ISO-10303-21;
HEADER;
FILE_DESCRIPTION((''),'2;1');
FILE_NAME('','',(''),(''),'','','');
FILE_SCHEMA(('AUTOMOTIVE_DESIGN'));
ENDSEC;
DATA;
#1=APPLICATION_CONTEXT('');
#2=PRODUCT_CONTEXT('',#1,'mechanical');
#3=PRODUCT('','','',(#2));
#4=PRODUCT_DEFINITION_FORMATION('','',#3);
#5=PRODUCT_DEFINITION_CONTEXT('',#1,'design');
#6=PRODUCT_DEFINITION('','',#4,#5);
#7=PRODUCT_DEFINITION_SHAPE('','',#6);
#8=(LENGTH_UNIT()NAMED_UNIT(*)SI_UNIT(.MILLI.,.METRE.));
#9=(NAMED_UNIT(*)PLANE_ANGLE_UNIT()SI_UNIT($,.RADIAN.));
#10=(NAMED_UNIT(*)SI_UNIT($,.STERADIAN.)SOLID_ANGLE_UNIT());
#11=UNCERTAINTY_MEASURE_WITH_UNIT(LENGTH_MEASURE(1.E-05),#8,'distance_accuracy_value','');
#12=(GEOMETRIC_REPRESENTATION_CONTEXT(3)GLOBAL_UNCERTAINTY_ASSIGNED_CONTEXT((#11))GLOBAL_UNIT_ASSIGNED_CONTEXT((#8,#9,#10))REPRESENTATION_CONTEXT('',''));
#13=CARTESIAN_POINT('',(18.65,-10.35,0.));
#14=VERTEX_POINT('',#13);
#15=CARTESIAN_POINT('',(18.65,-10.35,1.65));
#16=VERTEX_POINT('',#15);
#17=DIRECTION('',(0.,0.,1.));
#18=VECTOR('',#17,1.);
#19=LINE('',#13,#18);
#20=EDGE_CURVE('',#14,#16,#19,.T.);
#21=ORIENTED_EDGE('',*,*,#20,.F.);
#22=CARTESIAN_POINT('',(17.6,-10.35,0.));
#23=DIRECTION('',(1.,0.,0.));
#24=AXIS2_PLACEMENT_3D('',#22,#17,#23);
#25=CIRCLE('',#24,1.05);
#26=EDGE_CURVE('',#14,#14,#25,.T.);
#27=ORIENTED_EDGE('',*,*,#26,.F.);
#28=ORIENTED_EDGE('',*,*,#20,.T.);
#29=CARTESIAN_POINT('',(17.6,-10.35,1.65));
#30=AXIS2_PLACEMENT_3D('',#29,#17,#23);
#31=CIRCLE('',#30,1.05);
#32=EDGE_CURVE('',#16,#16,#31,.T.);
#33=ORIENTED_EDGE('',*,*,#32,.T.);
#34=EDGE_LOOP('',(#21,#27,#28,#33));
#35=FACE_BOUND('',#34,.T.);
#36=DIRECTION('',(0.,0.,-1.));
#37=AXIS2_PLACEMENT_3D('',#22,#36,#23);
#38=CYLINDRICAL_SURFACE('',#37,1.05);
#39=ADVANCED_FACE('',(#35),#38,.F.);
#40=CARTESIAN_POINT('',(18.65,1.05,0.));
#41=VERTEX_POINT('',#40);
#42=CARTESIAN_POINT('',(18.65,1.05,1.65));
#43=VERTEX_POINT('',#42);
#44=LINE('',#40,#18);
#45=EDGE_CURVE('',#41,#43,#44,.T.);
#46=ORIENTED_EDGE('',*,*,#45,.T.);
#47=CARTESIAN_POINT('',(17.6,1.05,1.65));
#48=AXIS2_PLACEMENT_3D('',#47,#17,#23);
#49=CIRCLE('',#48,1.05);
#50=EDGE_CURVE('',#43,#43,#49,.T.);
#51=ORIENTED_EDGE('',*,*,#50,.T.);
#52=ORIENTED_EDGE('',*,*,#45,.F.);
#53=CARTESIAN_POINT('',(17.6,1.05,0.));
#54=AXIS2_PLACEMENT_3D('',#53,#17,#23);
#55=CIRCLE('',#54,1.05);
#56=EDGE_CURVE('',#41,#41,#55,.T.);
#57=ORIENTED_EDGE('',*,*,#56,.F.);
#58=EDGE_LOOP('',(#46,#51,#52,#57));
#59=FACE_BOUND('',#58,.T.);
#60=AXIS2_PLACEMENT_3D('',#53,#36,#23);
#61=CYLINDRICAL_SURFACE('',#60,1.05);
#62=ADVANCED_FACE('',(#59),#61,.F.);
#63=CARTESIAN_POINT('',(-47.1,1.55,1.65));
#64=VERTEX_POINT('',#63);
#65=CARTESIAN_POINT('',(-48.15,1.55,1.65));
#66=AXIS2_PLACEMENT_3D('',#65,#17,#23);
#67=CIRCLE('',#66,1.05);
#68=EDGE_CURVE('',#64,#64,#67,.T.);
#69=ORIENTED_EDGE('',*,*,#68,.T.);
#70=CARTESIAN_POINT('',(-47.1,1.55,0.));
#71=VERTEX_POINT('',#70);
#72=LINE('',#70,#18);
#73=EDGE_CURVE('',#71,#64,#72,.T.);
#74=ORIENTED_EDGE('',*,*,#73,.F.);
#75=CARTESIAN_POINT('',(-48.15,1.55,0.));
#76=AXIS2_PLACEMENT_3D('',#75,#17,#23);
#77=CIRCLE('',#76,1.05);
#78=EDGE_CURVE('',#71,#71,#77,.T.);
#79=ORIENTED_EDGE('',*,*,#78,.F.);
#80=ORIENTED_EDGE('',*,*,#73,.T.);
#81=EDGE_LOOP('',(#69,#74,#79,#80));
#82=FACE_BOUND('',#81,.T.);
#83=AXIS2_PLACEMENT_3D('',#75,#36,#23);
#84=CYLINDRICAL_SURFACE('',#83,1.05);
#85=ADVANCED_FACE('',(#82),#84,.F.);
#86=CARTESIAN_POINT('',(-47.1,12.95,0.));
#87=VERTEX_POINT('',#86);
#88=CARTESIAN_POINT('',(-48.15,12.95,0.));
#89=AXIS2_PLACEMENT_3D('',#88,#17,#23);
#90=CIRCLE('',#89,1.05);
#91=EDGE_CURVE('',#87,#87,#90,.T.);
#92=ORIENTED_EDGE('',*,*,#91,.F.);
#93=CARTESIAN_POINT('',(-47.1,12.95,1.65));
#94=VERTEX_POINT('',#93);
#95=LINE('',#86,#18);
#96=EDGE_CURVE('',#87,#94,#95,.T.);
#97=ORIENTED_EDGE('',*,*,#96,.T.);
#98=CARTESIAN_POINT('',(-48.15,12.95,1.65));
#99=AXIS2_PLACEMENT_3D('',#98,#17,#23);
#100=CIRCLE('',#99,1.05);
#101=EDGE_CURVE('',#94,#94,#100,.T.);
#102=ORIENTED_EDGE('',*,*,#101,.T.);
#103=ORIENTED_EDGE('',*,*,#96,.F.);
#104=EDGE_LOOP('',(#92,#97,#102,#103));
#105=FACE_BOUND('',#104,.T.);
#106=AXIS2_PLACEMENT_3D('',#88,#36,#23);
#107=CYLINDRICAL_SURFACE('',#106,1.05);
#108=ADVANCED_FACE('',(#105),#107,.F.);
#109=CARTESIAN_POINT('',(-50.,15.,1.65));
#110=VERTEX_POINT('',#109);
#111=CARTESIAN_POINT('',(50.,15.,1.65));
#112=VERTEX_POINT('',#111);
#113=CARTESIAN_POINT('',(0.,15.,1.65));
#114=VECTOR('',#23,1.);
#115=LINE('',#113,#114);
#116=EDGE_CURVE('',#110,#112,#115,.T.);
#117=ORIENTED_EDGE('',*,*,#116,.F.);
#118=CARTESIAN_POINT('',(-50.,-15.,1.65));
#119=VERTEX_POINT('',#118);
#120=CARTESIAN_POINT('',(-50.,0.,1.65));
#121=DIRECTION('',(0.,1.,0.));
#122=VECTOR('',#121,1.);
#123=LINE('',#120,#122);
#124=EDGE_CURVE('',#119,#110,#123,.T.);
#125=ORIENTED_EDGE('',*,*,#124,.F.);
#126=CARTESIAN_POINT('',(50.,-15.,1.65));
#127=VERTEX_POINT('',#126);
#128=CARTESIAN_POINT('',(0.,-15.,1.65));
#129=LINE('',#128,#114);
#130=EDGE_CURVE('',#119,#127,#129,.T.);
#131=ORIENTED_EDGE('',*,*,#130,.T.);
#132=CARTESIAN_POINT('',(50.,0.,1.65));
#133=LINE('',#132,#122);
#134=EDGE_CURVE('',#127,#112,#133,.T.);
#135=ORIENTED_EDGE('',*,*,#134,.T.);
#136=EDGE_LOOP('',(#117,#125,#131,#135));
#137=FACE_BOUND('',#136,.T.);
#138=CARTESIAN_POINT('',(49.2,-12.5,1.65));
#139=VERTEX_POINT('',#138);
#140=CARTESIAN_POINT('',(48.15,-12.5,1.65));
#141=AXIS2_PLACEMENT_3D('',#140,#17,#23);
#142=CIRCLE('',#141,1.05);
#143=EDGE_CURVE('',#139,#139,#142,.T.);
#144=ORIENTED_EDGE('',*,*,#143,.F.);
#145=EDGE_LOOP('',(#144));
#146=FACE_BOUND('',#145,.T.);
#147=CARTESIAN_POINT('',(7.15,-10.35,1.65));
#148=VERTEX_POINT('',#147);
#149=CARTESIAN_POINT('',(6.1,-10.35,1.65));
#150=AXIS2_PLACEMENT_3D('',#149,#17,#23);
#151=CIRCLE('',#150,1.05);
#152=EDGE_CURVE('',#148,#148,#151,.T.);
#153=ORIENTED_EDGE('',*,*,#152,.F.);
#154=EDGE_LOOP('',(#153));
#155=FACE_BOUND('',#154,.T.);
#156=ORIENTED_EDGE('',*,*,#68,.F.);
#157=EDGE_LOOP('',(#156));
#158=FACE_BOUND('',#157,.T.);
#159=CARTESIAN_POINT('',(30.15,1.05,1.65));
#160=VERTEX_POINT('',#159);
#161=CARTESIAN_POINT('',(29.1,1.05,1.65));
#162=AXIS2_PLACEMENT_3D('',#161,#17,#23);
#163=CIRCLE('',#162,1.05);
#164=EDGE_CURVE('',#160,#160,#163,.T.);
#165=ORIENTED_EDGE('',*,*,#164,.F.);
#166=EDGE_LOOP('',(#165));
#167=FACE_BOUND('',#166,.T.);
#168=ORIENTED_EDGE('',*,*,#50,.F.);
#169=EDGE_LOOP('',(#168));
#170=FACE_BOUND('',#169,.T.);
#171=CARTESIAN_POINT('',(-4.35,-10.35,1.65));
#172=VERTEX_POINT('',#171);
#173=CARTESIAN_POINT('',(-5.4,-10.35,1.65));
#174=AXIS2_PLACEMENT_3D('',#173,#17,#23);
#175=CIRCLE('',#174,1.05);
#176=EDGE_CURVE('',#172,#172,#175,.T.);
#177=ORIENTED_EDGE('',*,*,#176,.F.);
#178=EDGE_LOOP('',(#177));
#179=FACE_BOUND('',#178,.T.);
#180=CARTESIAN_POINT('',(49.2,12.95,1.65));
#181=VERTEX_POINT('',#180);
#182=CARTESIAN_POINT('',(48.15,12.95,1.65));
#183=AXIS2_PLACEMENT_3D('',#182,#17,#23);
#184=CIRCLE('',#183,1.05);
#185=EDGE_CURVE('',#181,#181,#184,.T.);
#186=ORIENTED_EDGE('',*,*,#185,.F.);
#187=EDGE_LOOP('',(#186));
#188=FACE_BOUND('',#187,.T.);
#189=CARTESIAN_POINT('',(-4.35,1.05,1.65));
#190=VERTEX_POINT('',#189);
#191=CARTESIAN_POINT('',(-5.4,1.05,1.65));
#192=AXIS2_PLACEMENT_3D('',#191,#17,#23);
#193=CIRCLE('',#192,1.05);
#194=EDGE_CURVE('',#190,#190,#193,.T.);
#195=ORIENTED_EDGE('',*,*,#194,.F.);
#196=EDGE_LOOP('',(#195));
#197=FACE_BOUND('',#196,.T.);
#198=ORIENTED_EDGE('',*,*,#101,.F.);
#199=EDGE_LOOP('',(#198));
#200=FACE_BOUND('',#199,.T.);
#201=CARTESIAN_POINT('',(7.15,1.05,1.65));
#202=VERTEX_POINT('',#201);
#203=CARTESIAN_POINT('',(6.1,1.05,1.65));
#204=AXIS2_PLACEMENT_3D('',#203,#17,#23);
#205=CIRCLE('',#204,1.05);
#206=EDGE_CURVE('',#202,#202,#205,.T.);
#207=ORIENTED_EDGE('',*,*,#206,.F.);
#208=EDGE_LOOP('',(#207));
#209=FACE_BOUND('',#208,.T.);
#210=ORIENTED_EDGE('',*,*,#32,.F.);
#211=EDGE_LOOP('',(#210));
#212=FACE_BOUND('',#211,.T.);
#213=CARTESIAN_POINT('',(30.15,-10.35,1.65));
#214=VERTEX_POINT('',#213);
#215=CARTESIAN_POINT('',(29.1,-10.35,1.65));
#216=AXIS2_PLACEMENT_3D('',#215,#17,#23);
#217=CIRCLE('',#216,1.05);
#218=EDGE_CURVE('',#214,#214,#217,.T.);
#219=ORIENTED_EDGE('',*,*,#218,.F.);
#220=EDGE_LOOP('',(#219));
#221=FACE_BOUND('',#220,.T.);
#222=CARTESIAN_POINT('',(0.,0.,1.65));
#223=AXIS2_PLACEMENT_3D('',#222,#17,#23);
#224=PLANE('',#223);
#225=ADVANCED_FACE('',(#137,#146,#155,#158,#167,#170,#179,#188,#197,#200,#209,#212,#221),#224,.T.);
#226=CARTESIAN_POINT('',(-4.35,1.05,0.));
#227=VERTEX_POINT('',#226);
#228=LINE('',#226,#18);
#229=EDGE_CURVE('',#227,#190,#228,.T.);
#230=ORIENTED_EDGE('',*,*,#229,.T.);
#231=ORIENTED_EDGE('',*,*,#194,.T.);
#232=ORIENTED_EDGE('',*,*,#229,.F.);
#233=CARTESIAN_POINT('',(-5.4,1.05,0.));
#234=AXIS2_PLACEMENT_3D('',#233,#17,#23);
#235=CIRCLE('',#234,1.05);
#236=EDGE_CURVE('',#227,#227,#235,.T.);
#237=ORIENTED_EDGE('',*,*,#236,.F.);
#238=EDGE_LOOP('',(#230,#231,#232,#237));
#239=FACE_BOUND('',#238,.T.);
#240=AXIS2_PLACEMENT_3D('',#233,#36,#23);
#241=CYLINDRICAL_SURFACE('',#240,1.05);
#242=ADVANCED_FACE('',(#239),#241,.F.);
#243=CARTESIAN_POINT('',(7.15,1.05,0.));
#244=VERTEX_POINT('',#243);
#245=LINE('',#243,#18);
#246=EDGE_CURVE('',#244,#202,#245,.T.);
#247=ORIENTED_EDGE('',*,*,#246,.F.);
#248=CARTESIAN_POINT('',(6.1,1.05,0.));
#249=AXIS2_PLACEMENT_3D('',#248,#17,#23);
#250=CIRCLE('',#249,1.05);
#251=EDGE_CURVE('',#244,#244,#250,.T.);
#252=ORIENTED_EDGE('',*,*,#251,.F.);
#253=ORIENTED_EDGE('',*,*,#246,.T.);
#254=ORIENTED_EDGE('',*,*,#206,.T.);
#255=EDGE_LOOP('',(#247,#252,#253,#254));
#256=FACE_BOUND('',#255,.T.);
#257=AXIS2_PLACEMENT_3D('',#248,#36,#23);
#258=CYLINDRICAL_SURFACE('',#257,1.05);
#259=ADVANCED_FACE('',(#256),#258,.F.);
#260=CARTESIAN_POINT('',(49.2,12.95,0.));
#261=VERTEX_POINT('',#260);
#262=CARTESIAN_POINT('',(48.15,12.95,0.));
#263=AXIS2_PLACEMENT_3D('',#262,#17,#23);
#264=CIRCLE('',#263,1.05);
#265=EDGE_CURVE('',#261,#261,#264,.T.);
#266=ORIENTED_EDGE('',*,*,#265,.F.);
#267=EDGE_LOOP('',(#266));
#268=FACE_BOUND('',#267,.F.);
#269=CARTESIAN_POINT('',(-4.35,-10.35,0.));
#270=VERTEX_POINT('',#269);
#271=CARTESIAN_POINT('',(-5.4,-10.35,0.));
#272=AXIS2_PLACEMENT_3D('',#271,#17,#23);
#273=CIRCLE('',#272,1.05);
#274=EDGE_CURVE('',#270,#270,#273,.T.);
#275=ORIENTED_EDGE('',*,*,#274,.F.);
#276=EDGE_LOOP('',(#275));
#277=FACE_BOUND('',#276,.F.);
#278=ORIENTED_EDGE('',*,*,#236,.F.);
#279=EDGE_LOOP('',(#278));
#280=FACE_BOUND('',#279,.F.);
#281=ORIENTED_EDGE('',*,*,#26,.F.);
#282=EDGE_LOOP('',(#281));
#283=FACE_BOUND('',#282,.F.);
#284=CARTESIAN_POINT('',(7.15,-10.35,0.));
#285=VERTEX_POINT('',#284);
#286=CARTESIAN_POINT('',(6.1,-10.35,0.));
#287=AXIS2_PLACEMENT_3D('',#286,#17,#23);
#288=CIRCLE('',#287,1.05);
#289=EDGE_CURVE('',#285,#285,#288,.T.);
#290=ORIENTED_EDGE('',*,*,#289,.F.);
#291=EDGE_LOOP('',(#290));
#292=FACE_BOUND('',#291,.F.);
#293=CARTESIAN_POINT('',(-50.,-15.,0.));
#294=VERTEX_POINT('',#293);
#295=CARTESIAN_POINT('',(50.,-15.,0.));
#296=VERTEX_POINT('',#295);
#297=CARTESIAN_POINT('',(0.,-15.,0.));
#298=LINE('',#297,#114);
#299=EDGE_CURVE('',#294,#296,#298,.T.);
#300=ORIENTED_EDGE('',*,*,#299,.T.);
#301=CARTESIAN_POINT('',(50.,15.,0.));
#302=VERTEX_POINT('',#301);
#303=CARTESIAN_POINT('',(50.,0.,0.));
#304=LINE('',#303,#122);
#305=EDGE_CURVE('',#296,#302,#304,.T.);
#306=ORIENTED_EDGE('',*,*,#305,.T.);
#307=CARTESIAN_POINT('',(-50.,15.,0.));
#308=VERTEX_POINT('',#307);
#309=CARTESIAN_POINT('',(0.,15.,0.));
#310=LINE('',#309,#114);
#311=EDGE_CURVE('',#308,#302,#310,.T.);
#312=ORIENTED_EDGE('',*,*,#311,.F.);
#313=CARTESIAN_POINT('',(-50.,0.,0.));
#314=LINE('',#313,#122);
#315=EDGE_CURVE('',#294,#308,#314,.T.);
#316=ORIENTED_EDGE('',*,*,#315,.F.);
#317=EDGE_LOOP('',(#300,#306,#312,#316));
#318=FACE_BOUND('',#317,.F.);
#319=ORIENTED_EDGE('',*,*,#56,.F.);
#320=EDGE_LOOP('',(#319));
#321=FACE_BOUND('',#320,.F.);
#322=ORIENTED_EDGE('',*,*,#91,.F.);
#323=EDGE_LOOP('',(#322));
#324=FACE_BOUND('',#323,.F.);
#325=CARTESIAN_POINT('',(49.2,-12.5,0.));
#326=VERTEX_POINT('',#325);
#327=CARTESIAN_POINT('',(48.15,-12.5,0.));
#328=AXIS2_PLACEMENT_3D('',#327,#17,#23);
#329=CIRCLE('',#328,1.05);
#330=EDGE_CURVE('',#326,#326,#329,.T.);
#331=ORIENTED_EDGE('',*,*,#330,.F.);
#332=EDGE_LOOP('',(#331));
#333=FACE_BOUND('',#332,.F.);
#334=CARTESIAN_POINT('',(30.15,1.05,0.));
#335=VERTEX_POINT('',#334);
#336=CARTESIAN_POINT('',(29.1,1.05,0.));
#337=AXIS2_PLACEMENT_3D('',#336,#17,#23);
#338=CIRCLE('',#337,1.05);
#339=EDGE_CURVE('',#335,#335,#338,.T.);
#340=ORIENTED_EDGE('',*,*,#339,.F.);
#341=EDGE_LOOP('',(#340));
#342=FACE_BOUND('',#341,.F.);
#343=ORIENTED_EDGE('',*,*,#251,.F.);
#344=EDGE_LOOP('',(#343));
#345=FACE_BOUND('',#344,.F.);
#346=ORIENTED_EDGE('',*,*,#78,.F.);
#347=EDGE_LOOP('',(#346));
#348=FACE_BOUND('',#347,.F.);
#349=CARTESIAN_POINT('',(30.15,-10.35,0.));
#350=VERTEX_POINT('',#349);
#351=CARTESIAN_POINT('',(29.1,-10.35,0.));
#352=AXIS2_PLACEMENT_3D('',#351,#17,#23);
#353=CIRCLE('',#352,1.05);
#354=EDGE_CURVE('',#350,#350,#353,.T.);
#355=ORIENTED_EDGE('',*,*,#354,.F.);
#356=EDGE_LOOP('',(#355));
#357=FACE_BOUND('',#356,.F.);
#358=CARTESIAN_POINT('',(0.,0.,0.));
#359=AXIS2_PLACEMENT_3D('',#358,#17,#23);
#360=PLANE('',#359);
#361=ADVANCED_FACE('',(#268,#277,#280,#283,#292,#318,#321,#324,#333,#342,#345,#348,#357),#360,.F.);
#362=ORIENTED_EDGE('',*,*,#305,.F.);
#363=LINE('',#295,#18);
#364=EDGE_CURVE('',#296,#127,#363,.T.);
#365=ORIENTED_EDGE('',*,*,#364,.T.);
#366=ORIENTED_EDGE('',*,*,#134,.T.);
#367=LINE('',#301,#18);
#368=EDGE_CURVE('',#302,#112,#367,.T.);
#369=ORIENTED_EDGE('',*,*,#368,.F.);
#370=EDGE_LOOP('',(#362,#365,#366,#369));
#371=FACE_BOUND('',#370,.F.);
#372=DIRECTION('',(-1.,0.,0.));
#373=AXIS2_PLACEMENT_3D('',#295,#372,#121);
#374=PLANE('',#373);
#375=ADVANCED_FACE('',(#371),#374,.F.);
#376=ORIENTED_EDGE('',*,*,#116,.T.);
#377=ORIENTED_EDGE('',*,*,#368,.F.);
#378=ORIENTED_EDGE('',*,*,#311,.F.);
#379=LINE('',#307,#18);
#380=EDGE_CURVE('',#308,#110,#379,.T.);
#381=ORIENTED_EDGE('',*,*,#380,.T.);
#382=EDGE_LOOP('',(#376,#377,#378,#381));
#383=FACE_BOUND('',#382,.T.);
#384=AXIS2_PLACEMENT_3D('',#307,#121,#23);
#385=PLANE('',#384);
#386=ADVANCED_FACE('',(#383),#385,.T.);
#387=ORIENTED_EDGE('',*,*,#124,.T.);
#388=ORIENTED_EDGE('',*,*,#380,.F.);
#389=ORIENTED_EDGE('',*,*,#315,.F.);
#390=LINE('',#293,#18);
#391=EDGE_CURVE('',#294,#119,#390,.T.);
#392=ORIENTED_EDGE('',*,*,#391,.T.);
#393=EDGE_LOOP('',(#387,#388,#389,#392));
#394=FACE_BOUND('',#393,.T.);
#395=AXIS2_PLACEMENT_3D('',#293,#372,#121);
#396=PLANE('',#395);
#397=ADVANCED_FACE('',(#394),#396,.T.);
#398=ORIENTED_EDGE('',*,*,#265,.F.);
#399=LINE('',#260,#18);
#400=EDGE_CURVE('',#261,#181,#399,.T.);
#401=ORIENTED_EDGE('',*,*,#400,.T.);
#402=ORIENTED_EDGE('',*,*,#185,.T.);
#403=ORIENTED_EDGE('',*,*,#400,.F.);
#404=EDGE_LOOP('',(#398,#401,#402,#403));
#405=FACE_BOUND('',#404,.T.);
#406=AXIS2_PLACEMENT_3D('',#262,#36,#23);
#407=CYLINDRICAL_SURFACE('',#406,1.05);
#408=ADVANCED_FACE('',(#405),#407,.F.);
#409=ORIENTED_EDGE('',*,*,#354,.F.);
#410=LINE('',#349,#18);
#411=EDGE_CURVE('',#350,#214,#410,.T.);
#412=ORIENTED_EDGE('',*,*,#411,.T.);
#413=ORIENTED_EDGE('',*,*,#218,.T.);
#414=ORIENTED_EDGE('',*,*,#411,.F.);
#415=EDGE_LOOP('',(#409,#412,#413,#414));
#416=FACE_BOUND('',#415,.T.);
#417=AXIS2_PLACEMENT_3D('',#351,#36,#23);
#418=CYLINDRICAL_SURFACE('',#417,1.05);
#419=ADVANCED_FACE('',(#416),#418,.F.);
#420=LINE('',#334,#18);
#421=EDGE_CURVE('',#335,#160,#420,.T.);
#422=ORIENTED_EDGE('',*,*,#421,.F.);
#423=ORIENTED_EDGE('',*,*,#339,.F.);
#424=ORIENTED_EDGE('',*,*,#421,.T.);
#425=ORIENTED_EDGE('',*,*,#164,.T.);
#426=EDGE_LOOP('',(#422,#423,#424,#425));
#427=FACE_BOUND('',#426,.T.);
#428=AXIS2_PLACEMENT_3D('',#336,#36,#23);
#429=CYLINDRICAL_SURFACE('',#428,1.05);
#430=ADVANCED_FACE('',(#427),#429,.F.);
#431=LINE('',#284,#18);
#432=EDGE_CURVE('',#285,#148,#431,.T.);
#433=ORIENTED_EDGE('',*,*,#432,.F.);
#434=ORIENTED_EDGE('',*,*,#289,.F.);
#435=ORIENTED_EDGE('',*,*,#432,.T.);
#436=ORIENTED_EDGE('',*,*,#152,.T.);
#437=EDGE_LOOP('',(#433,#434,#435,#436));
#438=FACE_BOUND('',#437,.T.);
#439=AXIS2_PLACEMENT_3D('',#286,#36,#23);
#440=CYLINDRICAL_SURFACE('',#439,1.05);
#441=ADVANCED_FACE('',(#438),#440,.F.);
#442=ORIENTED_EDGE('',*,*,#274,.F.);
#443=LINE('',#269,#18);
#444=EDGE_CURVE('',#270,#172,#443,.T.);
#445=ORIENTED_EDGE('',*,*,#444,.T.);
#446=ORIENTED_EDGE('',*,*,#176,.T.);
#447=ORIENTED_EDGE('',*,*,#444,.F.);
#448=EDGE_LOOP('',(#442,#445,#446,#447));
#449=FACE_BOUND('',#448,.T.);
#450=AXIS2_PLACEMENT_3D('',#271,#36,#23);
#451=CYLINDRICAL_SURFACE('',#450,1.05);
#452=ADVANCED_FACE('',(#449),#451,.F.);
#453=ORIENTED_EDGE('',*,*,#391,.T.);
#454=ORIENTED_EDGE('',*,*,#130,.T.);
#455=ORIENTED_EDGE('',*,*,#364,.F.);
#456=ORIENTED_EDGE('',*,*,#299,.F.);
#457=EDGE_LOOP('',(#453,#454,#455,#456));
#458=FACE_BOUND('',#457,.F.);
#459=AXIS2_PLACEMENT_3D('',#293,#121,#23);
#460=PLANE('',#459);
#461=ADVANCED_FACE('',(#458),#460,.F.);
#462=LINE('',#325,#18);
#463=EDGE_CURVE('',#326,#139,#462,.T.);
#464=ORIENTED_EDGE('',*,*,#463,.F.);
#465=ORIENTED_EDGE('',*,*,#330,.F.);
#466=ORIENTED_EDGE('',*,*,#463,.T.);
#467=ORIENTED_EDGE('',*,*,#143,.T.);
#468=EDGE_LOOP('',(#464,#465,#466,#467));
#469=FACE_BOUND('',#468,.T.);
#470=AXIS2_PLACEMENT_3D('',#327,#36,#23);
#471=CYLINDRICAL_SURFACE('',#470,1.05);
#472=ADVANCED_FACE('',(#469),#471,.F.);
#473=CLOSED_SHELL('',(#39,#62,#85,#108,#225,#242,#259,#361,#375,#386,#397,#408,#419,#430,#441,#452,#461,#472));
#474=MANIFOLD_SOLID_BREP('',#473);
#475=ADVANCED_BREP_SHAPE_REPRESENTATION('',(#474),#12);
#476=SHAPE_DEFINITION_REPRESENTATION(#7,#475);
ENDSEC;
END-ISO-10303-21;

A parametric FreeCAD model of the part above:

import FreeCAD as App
import Part
import Sketcher
from FreeCAD import Vector
Q = App.Units.Quantity


def add_polygon(sketch, points):
    """Adds a closed chain of lines whose ends are joined by coincident constraints."""
    first, n = sketch.GeometryCount, len(points)
    for a, b in zip(points, points[1:] + points[:1]):
        sketch.addGeometry(Part.LineSegment(App.Vector(*a, 0), App.Vector(*b, 0)), False)
    for i in range(n):
        sketch.addConstraint(Sketcher.Constraint("Coincident", first + i, 2, first + (i + 1) % n, 1))

doc = App.newDocument("Part")
params = doc.addObject("Spreadsheet::Sheet", "Params")
for row, (alias, value) in enumerate([
    ("sketch1_diameter", "2.1 mm"),
    ("sketch1_width", "100 mm"),
    ("sketch1_height", "30 mm"),
    ("pad1_length", "1.65 mm"),
], start=1):
    params.set(f"A{row}", alias)
    params.set(f"B{row}", "=" + value)
    params.setAlias(f"B{row}", alias)

body = doc.addObject("PartDesign::Body", "Body")

sketch1 = body.newObject("Sketcher::SketchObject", "Sketch")
sketch1.AttachmentSupport = (doc.getObject("XY_Plane"), [""])
sketch1.MapMode = "FlatFace"
add_polygon(sketch1, [(-50, 15), (-50, -15), (50, -15), (50, 15)])
sketch1.addGeometry(Part.Circle(Vector(-5.4, -10.3, 0), Vector(0, 0, 1), 1.1), False)
sketch1.addGeometry(Part.Circle(Vector(6.1, -10.3, 0), Vector(0, 0, 1), 1.1), False)
sketch1.addGeometry(Part.Circle(Vector(17.6, -10.3, 0), Vector(0, 0, 1), 1.1), False)
sketch1.addGeometry(Part.Circle(Vector(29.1, -10.3, 0), Vector(0, 0, 1), 1.1), False)
sketch1.addGeometry(Part.Circle(Vector(48.1, -12.5, 0), Vector(0, 0, 1), 1.1), False)
sketch1.addGeometry(Part.Circle(Vector(-48.1, 1.6, 0), Vector(0, 0, 1), 1.1), False)
sketch1.addGeometry(Part.Circle(Vector(-5.4, 1.1, 0), Vector(0, 0, 1), 1.1), False)
sketch1.addGeometry(Part.Circle(Vector(-48.1, 12.9, 0), Vector(0, 0, 1), 1.1), False)
sketch1.addGeometry(Part.Circle(Vector(6.1, 1.1, 0), Vector(0, 0, 1), 1.1), False)
sketch1.addGeometry(Part.Circle(Vector(17.6, 1.1, 0), Vector(0, 0, 1), 1.1), False)
sketch1.addGeometry(Part.Circle(Vector(29.1, 1.1, 0), Vector(0, 0, 1), 1.1), False)
sketch1.addGeometry(Part.Circle(Vector(48.1, 12.9, 0), Vector(0, 0, 1), 1.1), False)
sketch1.addConstraint([
    Sketcher.Constraint("Vertical", 0),
    Sketcher.Constraint("Horizontal", 1),
    Sketcher.Constraint("Vertical", 2),
    Sketcher.Constraint("Horizontal", 3),
    Sketcher.Constraint("Equal", 4, 5),
    Sketcher.Constraint("Equal", 5, 6),
    Sketcher.Constraint("Equal", 6, 7),
    Sketcher.Constraint("Equal", 7, 8),
    Sketcher.Constraint("Equal", 8, 9),
    Sketcher.Constraint("Equal", 9, 10),
    Sketcher.Constraint("Equal", 10, 11),
    Sketcher.Constraint("Equal", 11, 12),
    Sketcher.Constraint("Equal", 12, 13),
    Sketcher.Constraint("Equal", 13, 14),
    Sketcher.Constraint("Equal", 14, 15),
    Sketcher.Constraint("Symmetric", 0, 2, 2, 2, -1, 1),
    Sketcher.Constraint("Symmetric", 11, 3, 15, 3, -2),
    Sketcher.Constraint("Horizontal", 4, 3, 5, 3),
    Sketcher.Constraint("Horizontal", 5, 3, 6, 3),
    Sketcher.Constraint("Horizontal", 6, 3, 7, 3),
    Sketcher.Constraint("Horizontal", 10, 3, 12, 3),
    Sketcher.Constraint("Horizontal", 12, 3, 13, 3),
    Sketcher.Constraint("Horizontal", 13, 3, 14, 3),
    Sketcher.Constraint("Vertical", 4, 3, 10, 3),
    Sketcher.Constraint("Vertical", 9, 3, 11, 3),
    Sketcher.Constraint("Vertical", 5, 3, 12, 3),
    Sketcher.Constraint("Vertical", 6, 3, 13, 3),
    Sketcher.Constraint("Vertical", 7, 3, 14, 3),
    Sketcher.Constraint("Vertical", 8, 3, 15, 3),
    Sketcher.Constraint("Diameter", 4, Q("2.1 mm")),
    Sketcher.Constraint("DistanceX", 1, 1, 1, 2, Q("100 mm")),
    Sketcher.Constraint("DistanceY", 0, 2, 0, 1, Q("30 mm")),
    Sketcher.Constraint("DistanceX", 4, 3, 6, 3, Q("23 mm")),
    Sketcher.Constraint("DistanceX", 5, 3, 7, 3, Q("23 mm")),
    Sketcher.Constraint("DistanceX", 4, 3, -1, 1, Q("5.4 mm")),
    Sketcher.Constraint("DistanceX", -1, 1, 5, 3, Q("6.1 mm")),
    Sketcher.Constraint("DistanceY", 8, 3, -1, 1, Q("12.5 mm")),
    Sketcher.Constraint("DistanceY", 4, 3, 9, 3, Q("11.9 mm")),
    Sketcher.Constraint("DistanceX", 9, 3, 8, 3, Q("96.3 mm")),
    Sketcher.Constraint("DistanceY", 4, 3, 10, 3, Q("11.4 mm")),
    Sketcher.Constraint("DistanceY", 9, 3, 11, 3, Q("11.4 mm")),
    Sketcher.Constraint("DistanceY", 4, 3, -1, 1, Q("10.35 mm")),
])
sketch1.setExpression("Constraints[33]", "Params.sketch1_diameter")
sketch1.setExpression("Constraints[34]", "Params.sketch1_width")
sketch1.setExpression("Constraints[35]", "Params.sketch1_height")
pad1 = body.newObject("PartDesign::Pad", "Pad")
pad1.Profile = sketch1
pad1.setExpression("Length", "Params.pad1_length")

doc.recompute()
